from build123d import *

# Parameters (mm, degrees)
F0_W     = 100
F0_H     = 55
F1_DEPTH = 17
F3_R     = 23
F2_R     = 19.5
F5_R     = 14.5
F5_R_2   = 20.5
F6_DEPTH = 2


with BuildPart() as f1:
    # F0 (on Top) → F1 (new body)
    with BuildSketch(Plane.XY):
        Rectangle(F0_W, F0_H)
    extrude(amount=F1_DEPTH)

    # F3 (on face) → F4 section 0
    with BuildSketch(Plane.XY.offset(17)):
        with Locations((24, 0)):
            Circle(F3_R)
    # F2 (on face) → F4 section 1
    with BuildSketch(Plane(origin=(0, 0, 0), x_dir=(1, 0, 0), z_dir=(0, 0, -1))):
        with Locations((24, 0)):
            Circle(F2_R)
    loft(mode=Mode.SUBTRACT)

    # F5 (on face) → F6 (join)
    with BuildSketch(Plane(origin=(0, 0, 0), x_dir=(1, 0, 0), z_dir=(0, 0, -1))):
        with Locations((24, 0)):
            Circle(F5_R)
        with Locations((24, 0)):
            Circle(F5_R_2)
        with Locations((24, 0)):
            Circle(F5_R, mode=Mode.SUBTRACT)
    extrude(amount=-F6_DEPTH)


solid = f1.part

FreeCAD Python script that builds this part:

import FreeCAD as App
import Part
import Sketcher
from FreeCAD import Vector


def add_polygon(sketch, points):
    """Adds a closed chain of lines whose ends are joined by coincident constraints."""
    first, n = sketch.GeometryCount, len(points)
    for a, b in zip(points, points[1:] + points[:1]):
        sketch.addGeometry(Part.LineSegment(App.Vector(*a, 0), App.Vector(*b, 0)), False)
    for i in range(n):
        sketch.addConstraint(Sketcher.Constraint("Coincident", first + i, 2, first + (i + 1) % n, 1))

doc = App.newDocument("Part")
body = doc.addObject("PartDesign::Body", "Body")

# Sketch on XY plane
sketch1 = body.newObject("Sketcher::SketchObject", "Sketch")
sketch1.AttachmentSupport = (doc.getObject("XY_Plane"), [""])
sketch1.MapMode = "FlatFace"
add_polygon(sketch1, [(-50, 27.5), (-50, -27.5), (50, -27.5), (50, 27.5)])  # lines 0-3
sketch1.addConstraint(Sketcher.Constraint("Vertical", 0))
sketch1.addConstraint(Sketcher.Constraint("Horizontal", 1))
sketch1.addConstraint(Sketcher.Constraint("Vertical", 2))
sketch1.addConstraint(Sketcher.Constraint("Horizontal", 3))
sketch1.addConstraint(Sketcher.Constraint("Symmetric", 0, 2, 2, 2, -1, 1))
sketch1.addConstraint(Sketcher.Constraint("DistanceX", 1, 1, 1, 2, 100.0))
sketch1.addConstraint(Sketcher.Constraint("DistanceY", 0, 2, 0, 1, 55.0))
pad1 = body.newObject("PartDesign::Pad", "Pad")
pad1.Profile = sketch1
pad1.Length = 17

# Sketch on XY plane
sketch2 = body.newObject("Sketcher::SketchObject", "Sketch001")
sketch2.AttachmentSupport = (doc.getObject("XY_Plane"), [""])
sketch2.MapMode = "FlatFace"
sketch2.AttachmentOffset = App.Placement(Vector(0, 0, 17), App.Rotation())
sketch2.addGeometry(Part.Circle(Vector(24, 0, 0), Vector(0, 0, 1), 23), False)
sketch2.addConstraint(Sketcher.Constraint("PointOnObject", 0, 3, -1))
sketch2.addConstraint(Sketcher.Constraint("Diameter", 0, 46.0))
sketch2.addConstraint(Sketcher.Constraint("DistanceX", -1, 1, 0, 3, 24.0))

# Sketch on XY plane
sketch3 = body.newObject("Sketcher::SketchObject", "Sketch002")
sketch3.AttachmentSupport = (doc.getObject("XY_Plane"), [""])
sketch3.MapMode = "FlatFace"
sketch3.addGeometry(Part.Circle(Vector(24, 0, 0), Vector(0, 0, 1), 19.5), False)
sketch3.addConstraint(Sketcher.Constraint("PointOnObject", 0, 3, -1))
sketch3.addConstraint(Sketcher.Constraint("Diameter", 0, 39.0))
sketch3.addConstraint(Sketcher.Constraint("DistanceX", -1, 1, 0, 3, 24.0))

subtractiveloft = body.newObject("PartDesign::SubtractiveLoft", "SubtractiveLoft")
subtractiveloft.Profile = sketch2
subtractiveloft.Sections = [sketch3]

# Sketch on XY plane
sketch4 = body.newObject("Sketcher::SketchObject", "Sketch003")
sketch4.AttachmentSupport = (doc.getObject("XY_Plane"), [""])
sketch4.MapMode = "FlatFace"
sketch4.addGeometry(Part.Circle(Vector(24, 0, 0), Vector(0, 0, 1), 20.5), False)
sketch4.addGeometry(Part.Circle(Vector(24, 0, 0), Vector(0, 0, 1), 14.5), False)
sketch4.addConstraint(Sketcher.Constraint("Coincident", 1, 3, 0, 3))
sketch4.addConstraint(Sketcher.Constraint("PointOnObject", 0, 3, -1))
sketch4.addConstraint(Sketcher.Constraint("Diameter", 0, 41.0))
sketch4.addConstraint(Sketcher.Constraint("Diameter", 1, 29.0))
sketch4.addConstraint(Sketcher.Constraint("DistanceX", -1, 1, 0, 3, 24.0))
pad2 = body.newObject("PartDesign::Pad", "Pad001")
pad2.Profile = sketch4
pad2.Length = 2

doc.recompute()
